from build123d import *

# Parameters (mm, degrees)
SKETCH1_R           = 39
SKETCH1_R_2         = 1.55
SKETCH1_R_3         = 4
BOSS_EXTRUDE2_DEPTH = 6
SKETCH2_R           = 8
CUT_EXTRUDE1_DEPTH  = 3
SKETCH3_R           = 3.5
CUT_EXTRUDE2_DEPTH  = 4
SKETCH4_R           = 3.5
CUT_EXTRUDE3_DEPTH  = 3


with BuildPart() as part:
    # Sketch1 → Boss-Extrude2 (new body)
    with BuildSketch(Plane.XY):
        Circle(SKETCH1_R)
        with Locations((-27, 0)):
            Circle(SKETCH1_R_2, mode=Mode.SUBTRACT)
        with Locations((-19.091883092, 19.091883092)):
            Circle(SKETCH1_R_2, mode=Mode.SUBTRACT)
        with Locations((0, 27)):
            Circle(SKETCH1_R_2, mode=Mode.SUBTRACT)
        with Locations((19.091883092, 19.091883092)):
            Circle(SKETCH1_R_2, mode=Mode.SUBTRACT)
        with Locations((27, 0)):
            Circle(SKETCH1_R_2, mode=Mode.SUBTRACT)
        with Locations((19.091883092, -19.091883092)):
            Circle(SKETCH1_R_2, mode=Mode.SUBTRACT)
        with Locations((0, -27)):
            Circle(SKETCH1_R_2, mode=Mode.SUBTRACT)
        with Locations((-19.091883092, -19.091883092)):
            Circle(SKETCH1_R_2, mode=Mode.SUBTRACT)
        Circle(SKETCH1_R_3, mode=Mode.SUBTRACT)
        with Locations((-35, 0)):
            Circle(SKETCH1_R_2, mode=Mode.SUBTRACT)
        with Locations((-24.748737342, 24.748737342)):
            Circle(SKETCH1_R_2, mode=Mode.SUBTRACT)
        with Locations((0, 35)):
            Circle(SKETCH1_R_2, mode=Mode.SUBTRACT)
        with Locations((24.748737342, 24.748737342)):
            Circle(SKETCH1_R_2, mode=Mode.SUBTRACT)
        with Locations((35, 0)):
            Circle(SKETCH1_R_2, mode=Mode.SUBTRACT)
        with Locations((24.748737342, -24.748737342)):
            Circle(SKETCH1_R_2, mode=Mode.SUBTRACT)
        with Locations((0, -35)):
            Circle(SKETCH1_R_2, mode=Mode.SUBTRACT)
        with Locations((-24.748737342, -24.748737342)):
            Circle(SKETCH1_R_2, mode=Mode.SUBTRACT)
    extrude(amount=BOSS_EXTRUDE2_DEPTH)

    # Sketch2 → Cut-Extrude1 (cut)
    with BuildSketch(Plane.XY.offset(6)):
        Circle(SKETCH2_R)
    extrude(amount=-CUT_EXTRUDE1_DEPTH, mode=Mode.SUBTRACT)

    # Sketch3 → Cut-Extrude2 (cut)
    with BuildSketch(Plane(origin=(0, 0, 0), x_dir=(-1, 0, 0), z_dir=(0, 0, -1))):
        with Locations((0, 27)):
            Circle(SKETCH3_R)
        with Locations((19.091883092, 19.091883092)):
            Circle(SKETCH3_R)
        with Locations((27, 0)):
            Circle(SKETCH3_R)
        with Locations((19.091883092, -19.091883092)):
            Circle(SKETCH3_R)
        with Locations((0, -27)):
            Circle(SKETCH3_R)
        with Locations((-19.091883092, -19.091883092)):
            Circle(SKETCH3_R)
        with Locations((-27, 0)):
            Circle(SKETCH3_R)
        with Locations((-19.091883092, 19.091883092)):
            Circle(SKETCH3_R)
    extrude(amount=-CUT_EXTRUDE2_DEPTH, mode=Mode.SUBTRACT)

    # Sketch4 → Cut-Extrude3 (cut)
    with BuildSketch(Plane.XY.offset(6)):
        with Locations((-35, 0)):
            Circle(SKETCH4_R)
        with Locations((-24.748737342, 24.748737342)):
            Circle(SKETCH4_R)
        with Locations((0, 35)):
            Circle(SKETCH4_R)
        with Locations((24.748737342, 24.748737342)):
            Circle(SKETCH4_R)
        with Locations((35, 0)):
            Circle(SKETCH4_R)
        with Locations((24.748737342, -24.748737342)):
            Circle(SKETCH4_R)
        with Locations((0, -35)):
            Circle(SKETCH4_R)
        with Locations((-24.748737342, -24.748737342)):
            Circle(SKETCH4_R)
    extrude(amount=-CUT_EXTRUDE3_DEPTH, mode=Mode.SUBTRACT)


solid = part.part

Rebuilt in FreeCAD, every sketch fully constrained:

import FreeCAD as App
import Part
import Sketcher
Q = App.Units.Quantity

doc = App.newDocument("Part")
params = doc.addObject("Spreadsheet::Sheet", "Params")
for row, (alias, value) in enumerate([
    ("sketch1_diameter", "78 mm"),
    ("sketch1_diameter2", "8 mm"),
    ("sketch1_diameter3", "3.1 mm"),
    ("pad1_length", "6 mm"),
    ("sketch2_diameter", "16 mm"),
    ("pocket1_length", "3 mm"),
    ("sketch3_diameter", "7 mm"),
    ("pocket2_length", "4 mm"),
    ("sketch4_diameter", "7 mm"),
    ("pocket3_length", "3 mm"),
], start=1):
    params.set(f"A{row}", alias)
    params.set(f"B{row}", "=" + value)
    params.setAlias(f"B{row}", alias)

body = doc.addObject("PartDesign::Body", "Body")

# Sketch on XY plane
sketch1 = doc.addObject("Sketcher::SketchObject", "Sketch")
body.addObject(sketch1)
sketch1.AttachmentSupport = (doc.XY_Plane, [""])
sketch1.MapMode = "FlatFace"
sketch1.addGeometry([
    Part.Circle(App.Vector(0, 0, 0), App.Vector(0, 0, 1), 39),  # 0
    Part.Circle(App.Vector(-24.7, -24.7, 0), App.Vector(0, 0, 1), 1.6),  # 1
    Part.Circle(App.Vector(-19.1, -19.1, 0), App.Vector(0, 0, 1), 1.6),  # 2
    Part.Circle(App.Vector(0, -35, 0), App.Vector(0, 0, 1), 1.6),  # 3
    Part.Circle(App.Vector(0, -27, 0), App.Vector(0, 0, 1), 1.6),  # 4
    Part.Circle(App.Vector(24.7, -24.7, 0), App.Vector(0, 0, 1), 1.6),  # 5
    Part.Circle(App.Vector(19.1, -19.1, 0), App.Vector(0, 0, 1), 1.6),  # 6
    Part.Circle(App.Vector(-35, 0, 0), App.Vector(0, 0, 1), 1.6),  # 7
    Part.Circle(App.Vector(-27, 0, 0), App.Vector(0, 0, 1), 1.6),  # 8
    Part.Circle(App.Vector(-19.1, 19.1, 0), App.Vector(0, 0, 1), 1.6),  # 9
    Part.Circle(App.Vector(-24.7, 24.7, 0), App.Vector(0, 0, 1), 1.6),  # 10
    Part.Circle(App.Vector(0, 0, 0), App.Vector(0, 0, 1), 4),  # 11
    Part.Circle(App.Vector(27, 0, 0), App.Vector(0, 0, 1), 1.6),  # 12
    Part.Circle(App.Vector(35, 0, 0), App.Vector(0, 0, 1), 1.6),  # 13
    Part.Circle(App.Vector(0, 27, 0), App.Vector(0, 0, 1), 1.6),  # 14
    Part.Circle(App.Vector(0, 35, 0), App.Vector(0, 0, 1), 1.6),  # 15
    Part.Circle(App.Vector(19.1, 19.1, 0), App.Vector(0, 0, 1), 1.6),  # 16
    Part.Circle(App.Vector(24.7, 24.7, 0), App.Vector(0, 0, 1), 1.6),  # 17
], False)
sketch1.addConstraint([
    Sketcher.Constraint("Coincident", 0, 3, -1, 1),
    Sketcher.Constraint("Coincident", 11, 3, -1, 1),
    Sketcher.Constraint("Equal", 1, 2),
    Sketcher.Constraint("Equal", 2, 3),
    Sketcher.Constraint("Equal", 3, 4),
    Sketcher.Constraint("Equal", 4, 5),
    Sketcher.Constraint("Equal", 5, 6),
    Sketcher.Constraint("Equal", 6, 7),
    Sketcher.Constraint("Equal", 7, 8),
    Sketcher.Constraint("Equal", 8, 9),
    Sketcher.Constraint("Equal", 9, 10),
    Sketcher.Constraint("Equal", 10, 12),
    Sketcher.Constraint("Equal", 12, 13),
    Sketcher.Constraint("Equal", 13, 14),
    Sketcher.Constraint("Equal", 14, 15),
    Sketcher.Constraint("Equal", 15, 16),
    Sketcher.Constraint("Equal", 16, 17),
    Sketcher.Constraint("Symmetric", 6, 3, 9, 3, -1, 1),
    Sketcher.Constraint("Symmetric", 5, 3, 10, 3, -1, 1),
    Sketcher.Constraint("Symmetric", 8, 3, 12, 3, -1, 1),
    Sketcher.Constraint("Symmetric", 7, 3, 13, 3, -1, 1),
    Sketcher.Constraint("Symmetric", 4, 3, 14, 3, -1, 1),
    Sketcher.Constraint("Symmetric", 3, 3, 15, 3, -1, 1),
    Sketcher.Constraint("Symmetric", 2, 3, 16, 3, -1, 1),
    Sketcher.Constraint("Symmetric", 1, 3, 17, 3, -1, 1),
    Sketcher.Constraint("Symmetric", 1, 3, 5, 3, -2),
    Sketcher.Constraint("Symmetric", 2, 3, 6, 3, -2),
    Sketcher.Constraint("PointOnObject", 3, 3, -2),
    Sketcher.Constraint("PointOnObject", 4, 3, -2),
    Sketcher.Constraint("PointOnObject", 7, 3, -1),
    Sketcher.Constraint("PointOnObject", 8, 3, -1),
    Sketcher.Constraint("Diameter", 0, Q("78 mm")),
    Sketcher.Constraint("Diameter", 11, Q("8 mm")),
    Sketcher.Constraint("Diameter", 1, Q("3.1 mm")),
    Sketcher.Constraint("DistanceY", 3, 3, -1, 1, Q("35 mm")),
    Sketcher.Constraint("DistanceY", 4, 3, -1, 1, Q("27 mm")),
    Sketcher.Constraint("DistanceX", 7, 3, -1, 1, Q("35 mm")),
    Sketcher.Constraint("DistanceX", 8, 3, -1, 1, Q("27 mm")),
    Sketcher.Constraint("DistanceX", 2, 3, 5, 3, Q("43.84062 mm")),
    Sketcher.Constraint("DistanceY", 1, 3, 9, 3, Q("43.84062 mm")),
    Sketcher.Constraint("DistanceX", 1, 3, -1, 1, Q("24.748737 mm")),
    Sketcher.Constraint("DistanceY", 1, 3, -1, 1, Q("24.748737 mm")),
])
sketch1.setExpression("Constraints[31]", "Params.sketch1_diameter")
sketch1.setExpression("Constraints[32]", "Params.sketch1_diameter2")
sketch1.setExpression("Constraints[33]", "Params.sketch1_diameter3")
pad1 = doc.addObject("PartDesign::Pad", "Pad")
body.addObject(pad1)
pad1.Profile = sketch1
pad1.setExpression("Length", "Params.pad1_length")

# Sketch on XY plane
sketch2 = doc.addObject("Sketcher::SketchObject", "Sketch001")
body.addObject(sketch2)
sketch2.AttachmentSupport = (doc.XY_Plane, [""])
sketch2.MapMode = "FlatFace"
sketch2.AttachmentOffset = App.Placement(App.Vector(0, 0, 6), App.Rotation())
sketch2.addGeometry(Part.Circle(App.Vector(0, 0, 0), App.Vector(0, 0, 1), 8), False)
sketch2.addConstraint([
    Sketcher.Constraint("Coincident", 0, 3, -1, 1),
    Sketcher.Constraint("Diameter", 0, Q("16 mm")),
])
sketch2.setExpression("Constraints[1]", "Params.sketch2_diameter")
pocket1 = doc.addObject("PartDesign::Pocket", "Pocket")
body.addObject(pocket1)
pocket1.Profile = sketch2
pocket1.setExpression("Length", "Params.pocket1_length")

# Sketch on XY plane
sketch3 = doc.addObject("Sketcher::SketchObject", "Sketch002")
body.addObject(sketch3)
sketch3.AttachmentSupport = (doc.XY_Plane, [""])
sketch3.MapMode = "FlatFace"
sketch3.addGeometry([
    Part.Circle(App.Vector(0, 27, 0), App.Vector(0, 0, 1), 3.5),  # 0
    Part.Circle(App.Vector(-19.1, 19.1, 0), App.Vector(0, 0, 1), 3.5),  # 1
    Part.Circle(App.Vector(-27, 0, 0), App.Vector(0, 0, 1), 3.5),  # 2
    Part.Circle(App.Vector(-19.1, -19.1, 0), App.Vector(0, 0, 1), 3.5),  # 3
    Part.Circle(App.Vector(0, -27, 0), App.Vector(0, 0, 1), 3.5),  # 4
    Part.Circle(App.Vector(19.1, -19.1, 0), App.Vector(0, 0, 1), 3.5),  # 5
    Part.Circle(App.Vector(27, 0, 0), App.Vector(0, 0, 1), 3.5),  # 6
    Part.Circle(App.Vector(19.1, 19.1, 0), App.Vector(0, 0, 1), 3.5),  # 7
], False)
sketch3.addConstraint([
    Sketcher.Constraint("Equal", 0, 1),
    Sketcher.Constraint("Equal", 1, 2),
    Sketcher.Constraint("Equal", 2, 3),
    Sketcher.Constraint("Equal", 3, 4),
    Sketcher.Constraint("Equal", 4, 5),
    Sketcher.Constraint("Equal", 5, 6),
    Sketcher.Constraint("Equal", 6, 7),
    Sketcher.Constraint("Symmetric", 0, 3, 4, 3, -1, 1),
    Sketcher.Constraint("Symmetric", 1, 3, 5, 3, -1, 1),
    Sketcher.Constraint("Symmetric", 2, 3, 6, 3, -1, 1),
    Sketcher.Constraint("Symmetric", 3, 3, 7, 3, -1, 1),
    Sketcher.Constraint("Symmetric", 3, 3, 5, 3, -2),
    Sketcher.Constraint("PointOnObject", 0, 3, -2),
    Sketcher.Constraint("PointOnObject", 2, 3, -1),
    Sketcher.Constraint("Diameter", 0, Q("7 mm")),
    Sketcher.Constraint("DistanceY", -1, 1, 0, 3, Q("27 mm")),
    Sketcher.Constraint("DistanceX", 2, 3, -1, 1, Q("27 mm")),
    Sketcher.Constraint("DistanceX", 1, 3, -1, 1, Q("19.091883 mm")),
    Sketcher.Constraint("DistanceY", -1, 1, 1, 3, Q("19.091883 mm")),
])
sketch3.setExpression("Constraints[14]", "Params.sketch3_diameter")
pocket2 = doc.addObject("PartDesign::Pocket", "Pocket001")
body.addObject(pocket2)
pocket2.Profile = sketch3
pocket2.setExpression("Length", "Params.pocket2_length")
pocket2.Reversed = True

# Sketch on XY plane
sketch4 = doc.addObject("Sketcher::SketchObject", "Sketch003")
body.addObject(sketch4)
sketch4.AttachmentSupport = (doc.XY_Plane, [""])
sketch4.MapMode = "FlatFace"
sketch4.AttachmentOffset = App.Placement(App.Vector(0, 0, 6), App.Rotation())
sketch4.addGeometry([
    Part.Circle(App.Vector(-35, 0, 0), App.Vector(0, 0, 1), 3.5),  # 0
    Part.Circle(App.Vector(-24.7, 24.7, 0), App.Vector(0, 0, 1), 3.5),  # 1
    Part.Circle(App.Vector(0, 35, 0), App.Vector(0, 0, 1), 3.5),  # 2
    Part.Circle(App.Vector(24.7, 24.7, 0), App.Vector(0, 0, 1), 3.5),  # 3
    Part.Circle(App.Vector(35, 0, 0), App.Vector(0, 0, 1), 3.5),  # 4
    Part.Circle(App.Vector(24.7, -24.7, 0), App.Vector(0, 0, 1), 3.5),  # 5
    Part.Circle(App.Vector(0, -35, 0), App.Vector(0, 0, 1), 3.5),  # 6
    Part.Circle(App.Vector(-24.7, -24.7, 0), App.Vector(0, 0, 1), 3.5),  # 7
], False)
sketch4.addConstraint([
    Sketcher.Constraint("Equal", 0, 1),
    Sketcher.Constraint("Equal", 1, 2),
    Sketcher.Constraint("Equal", 2, 3),
    Sketcher.Constraint("Equal", 3, 4),
    Sketcher.Constraint("Equal", 4, 5),
    Sketcher.Constraint("Equal", 5, 6),
    Sketcher.Constraint("Equal", 6, 7),
    Sketcher.Constraint("Symmetric", 0, 3, 4, 3, -1, 1),
    Sketcher.Constraint("Symmetric", 1, 3, 5, 3, -1, 1),
    Sketcher.Constraint("Symmetric", 2, 3, 6, 3, -1, 1),
    Sketcher.Constraint("Symmetric", 3, 3, 7, 3, -1, 1),
    Sketcher.Constraint("Symmetric", 1, 3, 3, 3, -2),
    Sketcher.Constraint("PointOnObject", 0, 3, -1),
    Sketcher.Constraint("PointOnObject", 2, 3, -2),
    Sketcher.Constraint("Diameter", 0, Q("7 mm")),
    Sketcher.Constraint("DistanceX", 0, 3, -1, 1, Q("35 mm")),
    Sketcher.Constraint("DistanceY", -1, 1, 2, 3, Q("35 mm")),
    Sketcher.Constraint("DistanceX", 1, 3, -1, 1, Q("24.748737 mm")),
    Sketcher.Constraint("DistanceY", -1, 1, 1, 3, Q("24.748737 mm")),
])
sketch4.setExpression("Constraints[14]", "Params.sketch4_diameter")
pocket3 = doc.addObject("PartDesign::Pocket", "Pocket002")
body.addObject(pocket3)
pocket3.Profile = sketch4
pocket3.setExpression("Length", "Params.pocket3_length")

doc.recompute()
